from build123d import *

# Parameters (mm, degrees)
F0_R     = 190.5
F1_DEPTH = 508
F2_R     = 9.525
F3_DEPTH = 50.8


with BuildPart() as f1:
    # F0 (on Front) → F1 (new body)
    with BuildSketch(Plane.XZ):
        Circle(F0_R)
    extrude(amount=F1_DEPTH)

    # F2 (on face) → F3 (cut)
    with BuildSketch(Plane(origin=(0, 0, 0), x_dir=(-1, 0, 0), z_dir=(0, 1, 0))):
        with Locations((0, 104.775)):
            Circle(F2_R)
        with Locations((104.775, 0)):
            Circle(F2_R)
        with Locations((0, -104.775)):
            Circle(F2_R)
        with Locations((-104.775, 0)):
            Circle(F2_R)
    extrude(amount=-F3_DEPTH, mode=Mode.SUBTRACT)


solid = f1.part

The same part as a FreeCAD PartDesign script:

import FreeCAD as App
import Part
import Sketcher
Q = App.Units.Quantity

doc = App.newDocument("Part")
body = doc.addObject("PartDesign::Body", "Body")

sketch1 = doc.addObject("Sketcher::SketchObject", "Sketch")
body.addObject(sketch1)
sketch1.AttachmentSupport = (doc.XZ_Plane, [""])
sketch1.MapMode = "FlatFace"
sketch1.addGeometry(Part.Circle(App.Vector(0, 0, 0), App.Vector(0, 0, 1), 190), False)
sketch1.addConstraint(Sketcher.Constraint("Coincident", 0, 3, -1, 1))
sketch1.addConstraint(Sketcher.Constraint("Diameter", 0, Q("15 in")))
pad1 = doc.addObject("PartDesign::Pad", "Pad")
body.addObject(pad1)
pad1.Profile = sketch1
pad1.Length = Q("20 in")

sketch2 = doc.addObject("Sketcher::SketchObject", "Sketch001")
body.addObject(sketch2)
sketch2.AttachmentSupport = (doc.XZ_Plane, [""])
sketch2.MapMode = "FlatFace"
sketch2.addGeometry(Part.Circle(App.Vector(0, 105, 0), App.Vector(0, 0, 1), 10), False)
sketch2.addGeometry(Part.Circle(App.Vector(-105, 0, 0), App.Vector(0, 0, 1), 10), False)
sketch2.addGeometry(Part.Circle(App.Vector(0, -105, 0), App.Vector(0, 0, 1), 10), False)
sketch2.addGeometry(Part.Circle(App.Vector(105, 0, 0), App.Vector(0, 0, 1), 10), False)
sketch2.addConstraint(Sketcher.Constraint("Equal", 0, 1))
sketch2.addConstraint(Sketcher.Constraint("Equal", 1, 2))
sketch2.addConstraint(Sketcher.Constraint("Equal", 2, 3))
sketch2.addConstraint(Sketcher.Constraint("Symmetric", 0, 3, 2, 3, -1, 1))
sketch2.addConstraint(Sketcher.Constraint("Symmetric", 1, 3, 3, 3, -1, 1))
sketch2.addConstraint(Sketcher.Constraint("PointOnObject", 0, 3, -2))
sketch2.addConstraint(Sketcher.Constraint("PointOnObject", 1, 3, -1))
sketch2.addConstraint(Sketcher.Constraint("Diameter", 0, Q("0.75 in")))
sketch2.addConstraint(Sketcher.Constraint("DistanceY", 2, 3, 0, 3, Q("8.25 in")))
sketch2.addConstraint(Sketcher.Constraint("DistanceX", 1, 3, 3, 3, Q("8.25 in")))
pocket1 = doc.addObject("PartDesign::Pocket", "Pocket")
body.addObject(pocket1)
pocket1.Profile = sketch2
pocket1.Length = Q("2 in")
pocket1.Reversed = True

doc.recompute()
